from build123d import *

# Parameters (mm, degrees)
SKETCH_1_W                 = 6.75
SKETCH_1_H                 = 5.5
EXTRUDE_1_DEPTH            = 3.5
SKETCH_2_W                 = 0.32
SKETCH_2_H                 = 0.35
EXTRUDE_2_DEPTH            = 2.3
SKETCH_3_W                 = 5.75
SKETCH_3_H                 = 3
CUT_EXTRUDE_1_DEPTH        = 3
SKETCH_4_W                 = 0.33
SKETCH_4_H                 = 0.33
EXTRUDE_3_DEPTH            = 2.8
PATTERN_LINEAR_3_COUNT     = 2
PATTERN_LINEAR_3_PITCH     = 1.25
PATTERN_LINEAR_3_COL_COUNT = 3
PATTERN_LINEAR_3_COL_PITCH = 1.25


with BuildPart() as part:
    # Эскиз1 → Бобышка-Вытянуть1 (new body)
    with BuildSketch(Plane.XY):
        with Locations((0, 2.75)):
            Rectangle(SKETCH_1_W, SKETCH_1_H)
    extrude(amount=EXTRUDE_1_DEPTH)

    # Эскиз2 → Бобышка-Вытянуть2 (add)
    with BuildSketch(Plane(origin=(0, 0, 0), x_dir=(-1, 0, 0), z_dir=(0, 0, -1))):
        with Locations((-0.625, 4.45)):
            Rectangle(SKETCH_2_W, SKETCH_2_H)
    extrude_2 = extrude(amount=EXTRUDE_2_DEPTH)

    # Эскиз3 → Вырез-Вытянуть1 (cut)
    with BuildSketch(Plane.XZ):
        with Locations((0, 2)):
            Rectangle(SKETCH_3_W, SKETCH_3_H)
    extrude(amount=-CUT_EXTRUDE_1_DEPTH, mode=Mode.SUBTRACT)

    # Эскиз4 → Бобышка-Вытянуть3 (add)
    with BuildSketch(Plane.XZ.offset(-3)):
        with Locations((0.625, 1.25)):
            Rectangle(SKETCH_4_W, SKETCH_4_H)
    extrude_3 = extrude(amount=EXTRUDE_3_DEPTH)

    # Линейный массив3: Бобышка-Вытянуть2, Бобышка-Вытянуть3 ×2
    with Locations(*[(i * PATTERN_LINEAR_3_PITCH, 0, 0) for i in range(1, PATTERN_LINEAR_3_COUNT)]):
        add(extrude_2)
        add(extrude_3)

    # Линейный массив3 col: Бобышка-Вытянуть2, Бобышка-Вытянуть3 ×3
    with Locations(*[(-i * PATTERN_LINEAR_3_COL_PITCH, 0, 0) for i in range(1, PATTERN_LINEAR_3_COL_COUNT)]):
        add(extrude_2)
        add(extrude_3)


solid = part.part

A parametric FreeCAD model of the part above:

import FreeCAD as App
import Part
import Sketcher
Q = App.Units.Quantity


def add_polygon(sketch, points):
    """Adds a closed chain of lines whose ends are joined by coincident constraints."""
    first, n = sketch.GeometryCount, len(points)
    for a, b in zip(points, points[1:] + points[:1]):
        sketch.addGeometry(Part.LineSegment(App.Vector(*a, 0), App.Vector(*b, 0)), False)
    for i in range(n):
        sketch.addConstraint(Sketcher.Constraint("Coincident", first + i, 2, first + (i + 1) % n, 1))

doc = App.newDocument("Part")
body = doc.addObject("PartDesign::Body", "Body")

# Sketch on XY plane
sketch1 = body.newObject("Sketcher::SketchObject", "Sketch")
sketch1.AttachmentSupport = (doc.getObject("XY_Plane"), [""])
sketch1.MapMode = "FlatFace"
add_polygon(sketch1, [(-3, 6), (-3, 0), (3, 0), (3, 6)])  # lines 0-3
sketch1.addConstraint([
    Sketcher.Constraint("Vertical", 0),
    Sketcher.Constraint("Horizontal", 1),
    Sketcher.Constraint("Vertical", 2),
    Sketcher.Constraint("Horizontal", 3),
    Sketcher.Constraint("Symmetric", 0, 2, 1, 2, -1, 1),
    Sketcher.Constraint("DistanceY", 0, 2, 0, 1, Q("5.5 mm")),
    Sketcher.Constraint("DistanceX", 1, 1, 1, 2, Q("6.75 mm")),
])
pad1 = body.newObject("PartDesign::Pad", "Pad")
pad1.Profile = sketch1
pad1.Length = 3.5

# Sketch on XY plane
sketch2 = body.newObject("Sketcher::SketchObject", "Sketch001")
sketch2.AttachmentSupport = (doc.getObject("XY_Plane"), [""])
sketch2.MapMode = "FlatFace"
add_polygon(sketch2, [(0.79, 4.62), (0.79, 4.28), (0.47, 4.28), (0.47, 4.62)])  # lines 0-3
sketch2.addConstraint([
    Sketcher.Constraint("Vertical", 0),
    Sketcher.Constraint("Horizontal", 1),
    Sketcher.Constraint("Vertical", 2),
    Sketcher.Constraint("Horizontal", 3),
    Sketcher.Constraint("DistanceX", 1, 2, 1, 1, Q("0.32 mm")),
    Sketcher.Constraint("DistanceY", 0, 2, 0, 1, Q("0.35 mm")),
    Sketcher.Constraint("DistanceX", -1, 1, 0, 2, Q("0.785 mm")),
    Sketcher.Constraint("DistanceY", -1, 1, 0, 2, Q("4.275 mm")),
])
pad2 = body.newObject("PartDesign::Pad", "Pad001")
pad2.Profile = sketch2
pad2.Length = 2.3
pad2.Reversed = True

# Sketch on XZ plane
sketch3 = body.newObject("Sketcher::SketchObject", "Sketch002")
sketch3.AttachmentSupport = (doc.getObject("XZ_Plane"), [""])
sketch3.MapMode = "FlatFace"
add_polygon(sketch3, [(-2.9, 3.5), (-2.9, 0.5), (2.9, 0.5), (2.9, 3.5)])  # lines 0-3
sketch3.addConstraint([
    Sketcher.Constraint("Vertical", 0),
    Sketcher.Constraint("Horizontal", 1),
    Sketcher.Constraint("Vertical", 2),
    Sketcher.Constraint("Horizontal", 3),
    Sketcher.Constraint("DistanceY", 0, 2, 0, 1, Q("3 mm")),
    Sketcher.Constraint("DistanceX", 1, 1, 1, 2, Q("5.75 mm")),
    Sketcher.Constraint("DistanceY", -1, 1, 0, 2, Q("0.5 mm")),
    Sketcher.Constraint("DistanceX", 0, 2, -1, 1, Q("2.875 mm")),
])
pocket1 = body.newObject("PartDesign::Pocket", "Pocket")
pocket1.Profile = sketch3
pocket1.Length = 3

# Sketch on XZ plane
sketch4 = body.newObject("Sketcher::SketchObject", "Sketch003")
sketch4.AttachmentSupport = (doc.getObject("XZ_Plane"), [""])
sketch4.MapMode = "FlatFace"
sketch4.AttachmentOffset = App.Placement(App.Vector(0, 0, -3), App.Rotation())
add_polygon(sketch4, [(0.46, 1.42), (0.46, 1.08), (0.79, 1.08), (0.79, 1.42)])  # lines 0-3
sketch4.addConstraint([
    Sketcher.Constraint("Vertical", 0),
    Sketcher.Constraint("Horizontal", 1),
    Sketcher.Constraint("Vertical", 2),
    Sketcher.Constraint("Horizontal", 3),
    Sketcher.Constraint("Equal", 3, 0),
    Sketcher.Constraint("DistanceX", 1, 1, 1, 2, Q("0.33 mm")),
    Sketcher.Constraint("DistanceX", -1, 1, 0, 2, Q("0.46 mm")),
    Sketcher.Constraint("DistanceY", -1, 1, 0, 2, Q("1.085 mm")),
])
pad3 = body.newObject("PartDesign::Pad", "Pad002")
pad3.Profile = sketch4
pad3.Length = 2.8
doc.recompute()

linearpattern = body.newObject("PartDesign::LinearPattern", "LinearPattern")
linearpattern.Originals = [pad2, pad3]
linearpattern.Direction = (doc.getObject("X_Axis"), [""])
linearpattern.Mode = "offset"
linearpattern.Offset = 1.25
linearpattern.Occurrences = 2
body.Tip = linearpattern
doc.recompute()

linearpattern2 = body.newObject("PartDesign::LinearPattern", "LinearPattern001")
linearpattern2.Originals = [pad2, pad3]
linearpattern2.Direction = (doc.getObject("X_Axis"), [""])
linearpattern2.Mode = "offset"
linearpattern2.Offset = 1.25
linearpattern2.Occurrences = 3
linearpattern2.Reversed = True
body.Tip = linearpattern2

doc.recompute()
